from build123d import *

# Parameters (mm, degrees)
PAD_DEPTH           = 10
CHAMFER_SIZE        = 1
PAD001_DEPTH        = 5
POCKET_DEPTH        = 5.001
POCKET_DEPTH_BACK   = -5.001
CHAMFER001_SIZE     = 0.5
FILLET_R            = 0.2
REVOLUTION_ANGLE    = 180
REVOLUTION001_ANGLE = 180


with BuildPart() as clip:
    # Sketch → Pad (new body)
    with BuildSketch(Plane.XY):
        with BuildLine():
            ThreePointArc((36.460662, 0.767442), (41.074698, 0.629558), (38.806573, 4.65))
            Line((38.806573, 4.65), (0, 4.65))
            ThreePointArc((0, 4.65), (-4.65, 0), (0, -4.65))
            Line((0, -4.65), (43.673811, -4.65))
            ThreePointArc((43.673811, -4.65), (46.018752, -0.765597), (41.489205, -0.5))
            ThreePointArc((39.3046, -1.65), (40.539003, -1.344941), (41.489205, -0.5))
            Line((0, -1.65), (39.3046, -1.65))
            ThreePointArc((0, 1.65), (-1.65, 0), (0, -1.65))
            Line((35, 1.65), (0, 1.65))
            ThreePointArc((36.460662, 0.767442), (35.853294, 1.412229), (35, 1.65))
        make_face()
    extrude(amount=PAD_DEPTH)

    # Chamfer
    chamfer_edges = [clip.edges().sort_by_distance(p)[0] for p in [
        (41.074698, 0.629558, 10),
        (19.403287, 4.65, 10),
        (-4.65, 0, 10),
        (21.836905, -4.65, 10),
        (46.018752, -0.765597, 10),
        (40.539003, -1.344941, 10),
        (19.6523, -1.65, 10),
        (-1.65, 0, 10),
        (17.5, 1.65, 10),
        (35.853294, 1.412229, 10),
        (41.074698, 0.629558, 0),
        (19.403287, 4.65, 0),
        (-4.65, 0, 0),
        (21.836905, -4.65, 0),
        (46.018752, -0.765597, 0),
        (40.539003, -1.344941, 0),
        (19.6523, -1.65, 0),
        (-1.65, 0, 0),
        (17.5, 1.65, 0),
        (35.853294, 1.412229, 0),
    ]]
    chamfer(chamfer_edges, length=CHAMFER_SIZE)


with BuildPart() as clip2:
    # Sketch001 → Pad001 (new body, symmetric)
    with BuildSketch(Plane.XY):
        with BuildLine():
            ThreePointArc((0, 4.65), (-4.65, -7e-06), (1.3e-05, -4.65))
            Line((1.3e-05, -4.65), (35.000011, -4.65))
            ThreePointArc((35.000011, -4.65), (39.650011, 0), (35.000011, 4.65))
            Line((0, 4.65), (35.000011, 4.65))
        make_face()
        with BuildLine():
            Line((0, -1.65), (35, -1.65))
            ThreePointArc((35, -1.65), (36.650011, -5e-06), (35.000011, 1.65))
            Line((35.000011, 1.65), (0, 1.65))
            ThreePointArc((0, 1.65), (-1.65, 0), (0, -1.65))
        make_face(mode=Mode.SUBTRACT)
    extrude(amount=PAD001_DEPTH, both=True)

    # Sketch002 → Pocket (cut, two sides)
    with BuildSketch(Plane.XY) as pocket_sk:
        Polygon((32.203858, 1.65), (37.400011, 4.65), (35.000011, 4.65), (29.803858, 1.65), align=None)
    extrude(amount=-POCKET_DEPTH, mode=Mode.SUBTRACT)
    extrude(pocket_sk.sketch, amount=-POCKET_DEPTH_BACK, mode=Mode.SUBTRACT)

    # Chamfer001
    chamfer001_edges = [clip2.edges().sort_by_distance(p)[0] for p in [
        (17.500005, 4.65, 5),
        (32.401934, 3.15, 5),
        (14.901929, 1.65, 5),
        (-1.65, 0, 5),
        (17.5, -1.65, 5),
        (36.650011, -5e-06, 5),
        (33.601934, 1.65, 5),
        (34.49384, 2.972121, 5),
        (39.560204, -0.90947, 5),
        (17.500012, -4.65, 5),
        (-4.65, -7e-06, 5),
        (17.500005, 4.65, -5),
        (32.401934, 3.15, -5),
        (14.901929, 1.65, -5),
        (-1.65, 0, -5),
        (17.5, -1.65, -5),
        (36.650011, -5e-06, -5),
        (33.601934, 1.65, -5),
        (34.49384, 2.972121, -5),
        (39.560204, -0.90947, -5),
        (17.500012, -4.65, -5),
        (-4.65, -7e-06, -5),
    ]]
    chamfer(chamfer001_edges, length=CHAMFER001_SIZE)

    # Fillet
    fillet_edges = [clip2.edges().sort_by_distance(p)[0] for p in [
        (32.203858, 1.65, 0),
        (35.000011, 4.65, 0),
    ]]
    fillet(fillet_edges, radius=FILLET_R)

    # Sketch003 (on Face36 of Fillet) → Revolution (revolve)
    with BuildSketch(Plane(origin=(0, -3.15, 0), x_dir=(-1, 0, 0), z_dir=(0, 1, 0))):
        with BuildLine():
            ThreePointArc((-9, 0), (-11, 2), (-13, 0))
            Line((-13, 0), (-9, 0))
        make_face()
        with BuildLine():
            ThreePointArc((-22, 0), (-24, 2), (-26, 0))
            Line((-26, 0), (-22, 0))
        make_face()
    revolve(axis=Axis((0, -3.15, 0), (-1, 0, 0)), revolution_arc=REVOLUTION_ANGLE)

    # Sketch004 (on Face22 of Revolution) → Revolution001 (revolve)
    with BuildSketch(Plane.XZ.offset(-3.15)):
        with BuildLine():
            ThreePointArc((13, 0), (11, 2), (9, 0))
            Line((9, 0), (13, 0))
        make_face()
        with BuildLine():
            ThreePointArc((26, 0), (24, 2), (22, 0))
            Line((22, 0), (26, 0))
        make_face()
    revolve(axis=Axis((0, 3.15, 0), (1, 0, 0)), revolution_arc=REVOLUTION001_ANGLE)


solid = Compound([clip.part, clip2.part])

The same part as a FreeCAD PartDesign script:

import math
import FreeCAD as App
import Part
import Sketcher

V = App.Vector
Q = App.Units.Quantity


def edges_at(feature, points):
    """Names of the edges that pass closest to the given points."""
    edges = feature.Shape.Edges
    near = lambda p: min(range(len(edges)), key=lambda i: edges[i].distToShape(Part.Vertex(*p))[0])
    return sorted({f"Edge{near(p) + 1}" for p in points})


def add_polygon(sketch, points):
    """Adds a closed chain of lines whose ends are joined by coincident constraints."""
    first, n = sketch.GeometryCount, len(points)
    for a, b in zip(points, points[1:] + points[:1]):
        sketch.addGeometry(Part.LineSegment(App.Vector(*a, 0), App.Vector(*b, 0)), False)
    for i in range(n):
        sketch.addConstraint(Sketcher.Constraint("Coincident", first + i, 2, first + (i + 1) % n, 1))

doc = App.newDocument("Part")
body = doc.addObject("PartDesign::Body", "Body")

sketch1 = body.newObject("Sketcher::SketchObject", "Sketch")
sketch1.AttachmentSupport = (doc.getObject("XY_Plane"), [""])
sketch1.MapMode = "FlatFace"
sketch1.addGeometry([
    Part.ArcOfCircle(Part.Circle(V(38.806574, 2, 0), V(0, 0, 1), 2.65), math.radians(-152.282256), math.radians(90.000011)),
    Part.LineSegment(V(38.806573, 4.65, 0), V(0, 4.65, 0)),
    Part.ArcOfCircle(Part.Circle(V(0, 0, 0), V(0, 0, 1), 4.65), math.radians(90), math.radians(270)),
    Part.LineSegment(V(0, -4.65, 0), V(43.673811, -4.65, 0)),
    Part.ArcOfCircle(Part.Circle(V(43.673811, -2, 0), V(0, 0, 1), 2.65), math.radians(-89.99999), math.radians(145.525622)),
    Part.ArcOfCircle(Part.Circle(V(39.304599, 1.000001, 0), V(0, 0, 1), 2.650001), math.radians(-89.999989), math.radians(-34.474391)),
    Part.LineSegment(V(39.3046, -1.65, 0), V(0, -1.65, 0)),
    Part.ArcOfCircle(Part.Circle(V(0, 0, 0), V(0, 0, 1), 1.65), math.radians(90), math.radians(270)),
    Part.LineSegment(V(0, 1.65, 0), V(35, 1.65, 0)),
    Part.ArcOfCircle(Part.Circle(V(35.000001, 0.000002, 0), V(0, 0, 1), 1.649998), math.radians(27.717716), math.radians(90.000046)),
], False)
sketch1.addConstraint([
    Sketcher.Constraint("Tangent", 0, 2, 1, 1),
    Sketcher.Constraint("Tangent", 1, 2, 2, 1),
    Sketcher.Constraint("Tangent", 2, 2, 3, 1),
    Sketcher.Constraint("Tangent", 3, 2, 4, 1),
    Sketcher.Constraint("Tangent", 4, 2, 5, 2),
    Sketcher.Constraint("Tangent", 5, 1, 6, 1),
    Sketcher.Constraint("Tangent", 6, 2, 7, 2),
    Sketcher.Constraint("Tangent", 7, 1, 8, 1),
    Sketcher.Constraint("Tangent", 8, 2, 9, 2),
    Sketcher.Constraint("Tangent", 9, 1, 0, 1),
    Sketcher.Constraint("Horizontal", 1),
    Sketcher.Constraint("Horizontal", 3),
    Sketcher.Constraint("Horizontal", 6),
    Sketcher.Constraint("Horizontal", 8),
    Sketcher.Constraint("Coincident", 2, 3, -1, 1),
    Sketcher.Constraint("Coincident", 7, 3, -1, 1),
    Sketcher.Constraint("Equal", 0, 4),
    Sketcher.Constraint("Equal", 4, 5),
    Sketcher.Constraint("Equal", 7, 9),
    Sketcher.Constraint("DistanceX", 8, 1, 8, 2, 35.0),
    Sketcher.Constraint("Radius", 0, 2.65),
    Sketcher.Constraint("Radius", 2, 4.65),
    Sketcher.Constraint("Radius", 7, 1.65),
    Sketcher.Constraint("DistanceX", 6, 2, 6, 1, 39.3046),
])
pad1 = body.newObject("PartDesign::Pad", "Pad")
pad1.Profile = sketch1
pad1.Length = 10
doc.recompute()

chamfer = body.newObject("PartDesign::Chamfer", "Chamfer")
chamfer.Base = (pad1, edges_at(pad1, [
    (41.075, 0.63, 10),
    (19.403, 4.65, 10),
    (-4.65, 0, 10),
    (21.837, -4.65, 10),
    (46.019, -0.766, 10),
    (40.539, -1.345, 10),
    (19.652, -1.65, 10),
    (-1.65, 0, 10),
    (17.5, 1.65, 10),
    (35.853, 1.412, 10),
    (41.075, 0.63, 0),
    (19.403, 4.65, 0),
    (-4.65, 0, 0),
    (21.837, -4.65, 0),
    (46.019, -0.766, 0),
    (40.539, -1.345, 0),
    (19.652, -1.65, 0),
    (-1.65, 0, 0),
    (17.5, 1.65, 0),
    (35.853, 1.412, 0),
]))
chamfer.Size = 1
body2 = doc.addObject("PartDesign::Body", "Body001")

sketch2 = body2.newObject("Sketcher::SketchObject", "Sketch001")
sketch2.AttachmentSupport = (doc.getObject("XY_Plane001"), [""])
sketch2.MapMode = "FlatFace"
sketch2.addGeometry([
    Part.ArcOfCircle(Part.Circle(V(0, 0, 0), V(0, 0, 1), 4.65), math.radians(90), math.radians(270.00016)),
    Part.LineSegment(V(0.000013, -4.65, 0), V(35.000011, -4.65, 0)),
    Part.ArcOfCircle(Part.Circle(V(35.000011, 0, 0), V(0, 0, 1), 4.65), math.radians(-90), math.radians(90)),
    Part.LineSegment(V(35.000011, 4.65, 0), V(0, 4.65, 0)),
    Part.LineSegment(V(35, -1.65, 0), V(0, -1.65, 0)),
    Part.ArcOfCircle(Part.Circle(V(0, 0, 0), V(0, 0, 1), 1.65), math.radians(90), math.radians(270)),
    Part.LineSegment(V(0, 1.65, 0), V(35.000011, 1.65, 0)),
    Part.ArcOfCircle(Part.Circle(V(35.000011, 0, 0), V(0, 0, 1), 1.65), math.radians(-90.000382), math.radians(90)),
], False)
sketch2.addConstraint([
    Sketcher.Constraint("Coincident", 0, 2, 1, 1),
    Sketcher.Constraint("Tangent", 1, 2, 2, 1),
    Sketcher.Constraint("Tangent", 2, 2, 3, 1),
    Sketcher.Constraint("Tangent", 3, 2, 0, 1),
    Sketcher.Constraint("Tangent", 4, 2, 5, 2),
    Sketcher.Constraint("Tangent", 5, 1, 6, 1),
    Sketcher.Constraint("Tangent", 6, 2, 7, 2),
    Sketcher.Constraint("Coincident", 7, 1, 4, 1),
    Sketcher.Constraint("Horizontal", 1),
    Sketcher.Constraint("Horizontal", 3),
    Sketcher.Constraint("Horizontal", 4),
    Sketcher.Constraint("Horizontal", 6),
    Sketcher.Constraint("Coincident", 0, 3, -1, 1),
    Sketcher.Constraint("Coincident", 5, 3, -1, 1),
    Sketcher.Constraint("Vertical", 7, 3, 1, 2),
    Sketcher.Constraint("DistanceX", 4, 2, 4, 1, 35.0),
    Sketcher.Constraint("Radius", 0, 4.65),
    Sketcher.Constraint("Radius", 5, 1.65),
    Sketcher.Constraint("DistanceX", 3, 2, 3, 1, 35.000011),
    Sketcher.Constraint("DistanceX", 1, 1, 1, 2, 34.999998),
])
pad2 = body2.newObject("PartDesign::Pad", "Pad001")
pad2.Profile = sketch2
pad2.Length = 10
pad2.Midplane = True

sketch3 = body2.newObject("Sketcher::SketchObject", "Sketch002")
sketch3.AttachmentSupport = (doc.getObject("XY_Plane001"), [""])
sketch3.MapMode = "FlatFace"
add_polygon(sketch3, [(32.203858, 1.65), (37.400011, 4.65), (35.000011, 4.65), (29.803858, 1.65)])
sketch3.addConstraint([
    Sketcher.Constraint("Horizontal", 1),
    Sketcher.Constraint("Horizontal", 3),
    Sketcher.Constraint("Parallel", 0, 2),
    Sketcher.Constraint("Angle", 0, Q("29.999997 deg")),
    Sketcher.Constraint("Distance", 0, 6.0),
    Sketcher.Constraint("DistanceX", 1, 2, 1, 1, 2.4),
    Sketcher.Constraint("DistanceY", -1, 1, 0, 2, 4.65),
    Sketcher.Constraint("DistanceX", -1, 1, 0, 2, 37.400011),
])
pocket1 = body2.newObject("PartDesign::Pocket", "Pocket")
pocket1.Profile = sketch3
pocket1.Type = "ThroughAll"
pocket1.Midplane = True
doc.recompute()

chamfer2 = body2.newObject("PartDesign::Chamfer", "Chamfer001")
chamfer2.Base = (pocket1, edges_at(pocket1, [
    (17.5, 4.65, 5),
    (32.402, 3.15, 5),
    (14.902, 1.65, 5),
    (-1.65, 0, 5),
    (17.5, -1.65, 5),
    (36.65, 0, 5),
    (33.602, 1.65, 5),
    (34.494, 2.972, 5),
    (39.56, -0.909, 5),
    (17.5, -4.65, 5),
    (-4.65, 0, 5),
    (17.5, 4.65, -5),
    (32.402, 3.15, -5),
    (14.902, 1.65, -5),
    (-1.65, 0, -5),
    (17.5, -1.65, -5),
    (36.65, 0, -5),
    (33.602, 1.65, -5),
    (34.494, 2.972, -5),
    (39.56, -0.909, -5),
    (17.5, -4.65, -5),
    (-4.65, 0, -5),
]))
chamfer2.Size = 0.5
doc.recompute()

fillet = body2.newObject("PartDesign::Fillet", "Fillet")
fillet.Base = (chamfer2, edges_at(chamfer2, [(32.204, 1.65, 0), (35, 4.65, 0)]))
fillet.Radius = 0.2

sketch4 = body2.newObject("Sketcher::SketchObject", "Sketch003")
sketch4.AttachmentSupport = (doc.getObject("XZ_Plane001"), [""])
sketch4.MapMode = "FlatFace"
sketch4.AttachmentOffset = App.Placement(V(0, 0, 3.15), App.Rotation())
sketch4.addGeometry([
    Part.ArcOfCircle(Part.Circle(V(11, 0, 0), V(0, 0, 1), 2), math.radians(0), math.radians(180)),
    Part.LineSegment(V(13, 0, 0), V(9, 0, 0)),
    Part.ArcOfCircle(Part.Circle(V(24, 0, 0), V(0, 0, 1), 2), math.radians(0), math.radians(180)),
    Part.LineSegment(V(26, 0, 0), V(22, 0, 0)),
], False)
sketch4.addConstraint([
    Sketcher.Constraint("Coincident", 0, 1, 1, 1),
    Sketcher.Constraint("Coincident", 1, 2, 0, 2),
    Sketcher.Constraint("Coincident", 2, 1, 3, 1),
    Sketcher.Constraint("Coincident", 3, 2, 2, 2),
    Sketcher.Constraint("Horizontal", 1),
    Sketcher.Constraint("Horizontal", 3),
    Sketcher.Constraint("Equal", 0, 2),
    Sketcher.Constraint("PointOnObject", 0, 3, -1),
    Sketcher.Constraint("PointOnObject", 2, 3, -1),
    Sketcher.Constraint("PointOnObject", 0, 1, -1),
    Sketcher.Constraint("PointOnObject", 2, 1, -1),
    Sketcher.Constraint("Radius", 0, 2.0),
    Sketcher.Constraint("DistanceX", -1, 1, 0, 3, 11.0),
    Sketcher.Constraint("DistanceX", -1, 1, 2, 3, 24.0),
])
revolution = body2.newObject("PartDesign::Revolution", "Revolution")
revolution.Profile = sketch4
revolution.ReferenceAxis = (sketch4, ["H_Axis"])
revolution.Angle = 180
revolution.Reversed = True

sketch5 = body2.newObject("Sketcher::SketchObject", "Sketch004")
sketch5.AttachmentSupport = (doc.getObject("XZ_Plane001"), [""])
sketch5.MapMode = "FlatFace"
sketch5.AttachmentOffset = App.Placement(V(0, 0, -3.15), App.Rotation())
sketch5.addGeometry([
    Part.ArcOfCircle(Part.Circle(V(11, 0, 0), V(0, 0, 1), 2), math.radians(0), math.radians(180)),
    Part.LineSegment(V(9, 0, 0), V(13, 0, 0)),
    Part.ArcOfCircle(Part.Circle(V(24, 0, 0), V(0, 0, 1), 2), math.radians(0), math.radians(180)),
    Part.LineSegment(V(22, 0, 0), V(26, 0, 0)),
], False)
sketch5.addConstraint([
    Sketcher.Constraint("Coincident", 0, 1, 1, 2),
    Sketcher.Constraint("Coincident", 1, 1, 0, 2),
    Sketcher.Constraint("Coincident", 2, 1, 3, 2),
    Sketcher.Constraint("Coincident", 3, 1, 2, 2),
    Sketcher.Constraint("Horizontal", 1),
    Sketcher.Constraint("Horizontal", 3),
    Sketcher.Constraint("Equal", 0, 2),
    Sketcher.Constraint("PointOnObject", 0, 3, -1),
    Sketcher.Constraint("PointOnObject", 2, 3, -1),
    Sketcher.Constraint("PointOnObject", 0, 1, -1),
    Sketcher.Constraint("PointOnObject", 2, 1, -1),
    Sketcher.Constraint("Radius", 0, 2.0),
    Sketcher.Constraint("DistanceX", -1, 1, 0, 3, 11.0),
    Sketcher.Constraint("DistanceX", -1, 1, 2, 3, 24.0),
])
revolution2 = body2.newObject("PartDesign::Revolution", "Revolution001")
revolution2.Profile = sketch5
revolution2.ReferenceAxis = (sketch5, ["H_Axis"])
revolution2.Angle = 180

doc.recompute()
